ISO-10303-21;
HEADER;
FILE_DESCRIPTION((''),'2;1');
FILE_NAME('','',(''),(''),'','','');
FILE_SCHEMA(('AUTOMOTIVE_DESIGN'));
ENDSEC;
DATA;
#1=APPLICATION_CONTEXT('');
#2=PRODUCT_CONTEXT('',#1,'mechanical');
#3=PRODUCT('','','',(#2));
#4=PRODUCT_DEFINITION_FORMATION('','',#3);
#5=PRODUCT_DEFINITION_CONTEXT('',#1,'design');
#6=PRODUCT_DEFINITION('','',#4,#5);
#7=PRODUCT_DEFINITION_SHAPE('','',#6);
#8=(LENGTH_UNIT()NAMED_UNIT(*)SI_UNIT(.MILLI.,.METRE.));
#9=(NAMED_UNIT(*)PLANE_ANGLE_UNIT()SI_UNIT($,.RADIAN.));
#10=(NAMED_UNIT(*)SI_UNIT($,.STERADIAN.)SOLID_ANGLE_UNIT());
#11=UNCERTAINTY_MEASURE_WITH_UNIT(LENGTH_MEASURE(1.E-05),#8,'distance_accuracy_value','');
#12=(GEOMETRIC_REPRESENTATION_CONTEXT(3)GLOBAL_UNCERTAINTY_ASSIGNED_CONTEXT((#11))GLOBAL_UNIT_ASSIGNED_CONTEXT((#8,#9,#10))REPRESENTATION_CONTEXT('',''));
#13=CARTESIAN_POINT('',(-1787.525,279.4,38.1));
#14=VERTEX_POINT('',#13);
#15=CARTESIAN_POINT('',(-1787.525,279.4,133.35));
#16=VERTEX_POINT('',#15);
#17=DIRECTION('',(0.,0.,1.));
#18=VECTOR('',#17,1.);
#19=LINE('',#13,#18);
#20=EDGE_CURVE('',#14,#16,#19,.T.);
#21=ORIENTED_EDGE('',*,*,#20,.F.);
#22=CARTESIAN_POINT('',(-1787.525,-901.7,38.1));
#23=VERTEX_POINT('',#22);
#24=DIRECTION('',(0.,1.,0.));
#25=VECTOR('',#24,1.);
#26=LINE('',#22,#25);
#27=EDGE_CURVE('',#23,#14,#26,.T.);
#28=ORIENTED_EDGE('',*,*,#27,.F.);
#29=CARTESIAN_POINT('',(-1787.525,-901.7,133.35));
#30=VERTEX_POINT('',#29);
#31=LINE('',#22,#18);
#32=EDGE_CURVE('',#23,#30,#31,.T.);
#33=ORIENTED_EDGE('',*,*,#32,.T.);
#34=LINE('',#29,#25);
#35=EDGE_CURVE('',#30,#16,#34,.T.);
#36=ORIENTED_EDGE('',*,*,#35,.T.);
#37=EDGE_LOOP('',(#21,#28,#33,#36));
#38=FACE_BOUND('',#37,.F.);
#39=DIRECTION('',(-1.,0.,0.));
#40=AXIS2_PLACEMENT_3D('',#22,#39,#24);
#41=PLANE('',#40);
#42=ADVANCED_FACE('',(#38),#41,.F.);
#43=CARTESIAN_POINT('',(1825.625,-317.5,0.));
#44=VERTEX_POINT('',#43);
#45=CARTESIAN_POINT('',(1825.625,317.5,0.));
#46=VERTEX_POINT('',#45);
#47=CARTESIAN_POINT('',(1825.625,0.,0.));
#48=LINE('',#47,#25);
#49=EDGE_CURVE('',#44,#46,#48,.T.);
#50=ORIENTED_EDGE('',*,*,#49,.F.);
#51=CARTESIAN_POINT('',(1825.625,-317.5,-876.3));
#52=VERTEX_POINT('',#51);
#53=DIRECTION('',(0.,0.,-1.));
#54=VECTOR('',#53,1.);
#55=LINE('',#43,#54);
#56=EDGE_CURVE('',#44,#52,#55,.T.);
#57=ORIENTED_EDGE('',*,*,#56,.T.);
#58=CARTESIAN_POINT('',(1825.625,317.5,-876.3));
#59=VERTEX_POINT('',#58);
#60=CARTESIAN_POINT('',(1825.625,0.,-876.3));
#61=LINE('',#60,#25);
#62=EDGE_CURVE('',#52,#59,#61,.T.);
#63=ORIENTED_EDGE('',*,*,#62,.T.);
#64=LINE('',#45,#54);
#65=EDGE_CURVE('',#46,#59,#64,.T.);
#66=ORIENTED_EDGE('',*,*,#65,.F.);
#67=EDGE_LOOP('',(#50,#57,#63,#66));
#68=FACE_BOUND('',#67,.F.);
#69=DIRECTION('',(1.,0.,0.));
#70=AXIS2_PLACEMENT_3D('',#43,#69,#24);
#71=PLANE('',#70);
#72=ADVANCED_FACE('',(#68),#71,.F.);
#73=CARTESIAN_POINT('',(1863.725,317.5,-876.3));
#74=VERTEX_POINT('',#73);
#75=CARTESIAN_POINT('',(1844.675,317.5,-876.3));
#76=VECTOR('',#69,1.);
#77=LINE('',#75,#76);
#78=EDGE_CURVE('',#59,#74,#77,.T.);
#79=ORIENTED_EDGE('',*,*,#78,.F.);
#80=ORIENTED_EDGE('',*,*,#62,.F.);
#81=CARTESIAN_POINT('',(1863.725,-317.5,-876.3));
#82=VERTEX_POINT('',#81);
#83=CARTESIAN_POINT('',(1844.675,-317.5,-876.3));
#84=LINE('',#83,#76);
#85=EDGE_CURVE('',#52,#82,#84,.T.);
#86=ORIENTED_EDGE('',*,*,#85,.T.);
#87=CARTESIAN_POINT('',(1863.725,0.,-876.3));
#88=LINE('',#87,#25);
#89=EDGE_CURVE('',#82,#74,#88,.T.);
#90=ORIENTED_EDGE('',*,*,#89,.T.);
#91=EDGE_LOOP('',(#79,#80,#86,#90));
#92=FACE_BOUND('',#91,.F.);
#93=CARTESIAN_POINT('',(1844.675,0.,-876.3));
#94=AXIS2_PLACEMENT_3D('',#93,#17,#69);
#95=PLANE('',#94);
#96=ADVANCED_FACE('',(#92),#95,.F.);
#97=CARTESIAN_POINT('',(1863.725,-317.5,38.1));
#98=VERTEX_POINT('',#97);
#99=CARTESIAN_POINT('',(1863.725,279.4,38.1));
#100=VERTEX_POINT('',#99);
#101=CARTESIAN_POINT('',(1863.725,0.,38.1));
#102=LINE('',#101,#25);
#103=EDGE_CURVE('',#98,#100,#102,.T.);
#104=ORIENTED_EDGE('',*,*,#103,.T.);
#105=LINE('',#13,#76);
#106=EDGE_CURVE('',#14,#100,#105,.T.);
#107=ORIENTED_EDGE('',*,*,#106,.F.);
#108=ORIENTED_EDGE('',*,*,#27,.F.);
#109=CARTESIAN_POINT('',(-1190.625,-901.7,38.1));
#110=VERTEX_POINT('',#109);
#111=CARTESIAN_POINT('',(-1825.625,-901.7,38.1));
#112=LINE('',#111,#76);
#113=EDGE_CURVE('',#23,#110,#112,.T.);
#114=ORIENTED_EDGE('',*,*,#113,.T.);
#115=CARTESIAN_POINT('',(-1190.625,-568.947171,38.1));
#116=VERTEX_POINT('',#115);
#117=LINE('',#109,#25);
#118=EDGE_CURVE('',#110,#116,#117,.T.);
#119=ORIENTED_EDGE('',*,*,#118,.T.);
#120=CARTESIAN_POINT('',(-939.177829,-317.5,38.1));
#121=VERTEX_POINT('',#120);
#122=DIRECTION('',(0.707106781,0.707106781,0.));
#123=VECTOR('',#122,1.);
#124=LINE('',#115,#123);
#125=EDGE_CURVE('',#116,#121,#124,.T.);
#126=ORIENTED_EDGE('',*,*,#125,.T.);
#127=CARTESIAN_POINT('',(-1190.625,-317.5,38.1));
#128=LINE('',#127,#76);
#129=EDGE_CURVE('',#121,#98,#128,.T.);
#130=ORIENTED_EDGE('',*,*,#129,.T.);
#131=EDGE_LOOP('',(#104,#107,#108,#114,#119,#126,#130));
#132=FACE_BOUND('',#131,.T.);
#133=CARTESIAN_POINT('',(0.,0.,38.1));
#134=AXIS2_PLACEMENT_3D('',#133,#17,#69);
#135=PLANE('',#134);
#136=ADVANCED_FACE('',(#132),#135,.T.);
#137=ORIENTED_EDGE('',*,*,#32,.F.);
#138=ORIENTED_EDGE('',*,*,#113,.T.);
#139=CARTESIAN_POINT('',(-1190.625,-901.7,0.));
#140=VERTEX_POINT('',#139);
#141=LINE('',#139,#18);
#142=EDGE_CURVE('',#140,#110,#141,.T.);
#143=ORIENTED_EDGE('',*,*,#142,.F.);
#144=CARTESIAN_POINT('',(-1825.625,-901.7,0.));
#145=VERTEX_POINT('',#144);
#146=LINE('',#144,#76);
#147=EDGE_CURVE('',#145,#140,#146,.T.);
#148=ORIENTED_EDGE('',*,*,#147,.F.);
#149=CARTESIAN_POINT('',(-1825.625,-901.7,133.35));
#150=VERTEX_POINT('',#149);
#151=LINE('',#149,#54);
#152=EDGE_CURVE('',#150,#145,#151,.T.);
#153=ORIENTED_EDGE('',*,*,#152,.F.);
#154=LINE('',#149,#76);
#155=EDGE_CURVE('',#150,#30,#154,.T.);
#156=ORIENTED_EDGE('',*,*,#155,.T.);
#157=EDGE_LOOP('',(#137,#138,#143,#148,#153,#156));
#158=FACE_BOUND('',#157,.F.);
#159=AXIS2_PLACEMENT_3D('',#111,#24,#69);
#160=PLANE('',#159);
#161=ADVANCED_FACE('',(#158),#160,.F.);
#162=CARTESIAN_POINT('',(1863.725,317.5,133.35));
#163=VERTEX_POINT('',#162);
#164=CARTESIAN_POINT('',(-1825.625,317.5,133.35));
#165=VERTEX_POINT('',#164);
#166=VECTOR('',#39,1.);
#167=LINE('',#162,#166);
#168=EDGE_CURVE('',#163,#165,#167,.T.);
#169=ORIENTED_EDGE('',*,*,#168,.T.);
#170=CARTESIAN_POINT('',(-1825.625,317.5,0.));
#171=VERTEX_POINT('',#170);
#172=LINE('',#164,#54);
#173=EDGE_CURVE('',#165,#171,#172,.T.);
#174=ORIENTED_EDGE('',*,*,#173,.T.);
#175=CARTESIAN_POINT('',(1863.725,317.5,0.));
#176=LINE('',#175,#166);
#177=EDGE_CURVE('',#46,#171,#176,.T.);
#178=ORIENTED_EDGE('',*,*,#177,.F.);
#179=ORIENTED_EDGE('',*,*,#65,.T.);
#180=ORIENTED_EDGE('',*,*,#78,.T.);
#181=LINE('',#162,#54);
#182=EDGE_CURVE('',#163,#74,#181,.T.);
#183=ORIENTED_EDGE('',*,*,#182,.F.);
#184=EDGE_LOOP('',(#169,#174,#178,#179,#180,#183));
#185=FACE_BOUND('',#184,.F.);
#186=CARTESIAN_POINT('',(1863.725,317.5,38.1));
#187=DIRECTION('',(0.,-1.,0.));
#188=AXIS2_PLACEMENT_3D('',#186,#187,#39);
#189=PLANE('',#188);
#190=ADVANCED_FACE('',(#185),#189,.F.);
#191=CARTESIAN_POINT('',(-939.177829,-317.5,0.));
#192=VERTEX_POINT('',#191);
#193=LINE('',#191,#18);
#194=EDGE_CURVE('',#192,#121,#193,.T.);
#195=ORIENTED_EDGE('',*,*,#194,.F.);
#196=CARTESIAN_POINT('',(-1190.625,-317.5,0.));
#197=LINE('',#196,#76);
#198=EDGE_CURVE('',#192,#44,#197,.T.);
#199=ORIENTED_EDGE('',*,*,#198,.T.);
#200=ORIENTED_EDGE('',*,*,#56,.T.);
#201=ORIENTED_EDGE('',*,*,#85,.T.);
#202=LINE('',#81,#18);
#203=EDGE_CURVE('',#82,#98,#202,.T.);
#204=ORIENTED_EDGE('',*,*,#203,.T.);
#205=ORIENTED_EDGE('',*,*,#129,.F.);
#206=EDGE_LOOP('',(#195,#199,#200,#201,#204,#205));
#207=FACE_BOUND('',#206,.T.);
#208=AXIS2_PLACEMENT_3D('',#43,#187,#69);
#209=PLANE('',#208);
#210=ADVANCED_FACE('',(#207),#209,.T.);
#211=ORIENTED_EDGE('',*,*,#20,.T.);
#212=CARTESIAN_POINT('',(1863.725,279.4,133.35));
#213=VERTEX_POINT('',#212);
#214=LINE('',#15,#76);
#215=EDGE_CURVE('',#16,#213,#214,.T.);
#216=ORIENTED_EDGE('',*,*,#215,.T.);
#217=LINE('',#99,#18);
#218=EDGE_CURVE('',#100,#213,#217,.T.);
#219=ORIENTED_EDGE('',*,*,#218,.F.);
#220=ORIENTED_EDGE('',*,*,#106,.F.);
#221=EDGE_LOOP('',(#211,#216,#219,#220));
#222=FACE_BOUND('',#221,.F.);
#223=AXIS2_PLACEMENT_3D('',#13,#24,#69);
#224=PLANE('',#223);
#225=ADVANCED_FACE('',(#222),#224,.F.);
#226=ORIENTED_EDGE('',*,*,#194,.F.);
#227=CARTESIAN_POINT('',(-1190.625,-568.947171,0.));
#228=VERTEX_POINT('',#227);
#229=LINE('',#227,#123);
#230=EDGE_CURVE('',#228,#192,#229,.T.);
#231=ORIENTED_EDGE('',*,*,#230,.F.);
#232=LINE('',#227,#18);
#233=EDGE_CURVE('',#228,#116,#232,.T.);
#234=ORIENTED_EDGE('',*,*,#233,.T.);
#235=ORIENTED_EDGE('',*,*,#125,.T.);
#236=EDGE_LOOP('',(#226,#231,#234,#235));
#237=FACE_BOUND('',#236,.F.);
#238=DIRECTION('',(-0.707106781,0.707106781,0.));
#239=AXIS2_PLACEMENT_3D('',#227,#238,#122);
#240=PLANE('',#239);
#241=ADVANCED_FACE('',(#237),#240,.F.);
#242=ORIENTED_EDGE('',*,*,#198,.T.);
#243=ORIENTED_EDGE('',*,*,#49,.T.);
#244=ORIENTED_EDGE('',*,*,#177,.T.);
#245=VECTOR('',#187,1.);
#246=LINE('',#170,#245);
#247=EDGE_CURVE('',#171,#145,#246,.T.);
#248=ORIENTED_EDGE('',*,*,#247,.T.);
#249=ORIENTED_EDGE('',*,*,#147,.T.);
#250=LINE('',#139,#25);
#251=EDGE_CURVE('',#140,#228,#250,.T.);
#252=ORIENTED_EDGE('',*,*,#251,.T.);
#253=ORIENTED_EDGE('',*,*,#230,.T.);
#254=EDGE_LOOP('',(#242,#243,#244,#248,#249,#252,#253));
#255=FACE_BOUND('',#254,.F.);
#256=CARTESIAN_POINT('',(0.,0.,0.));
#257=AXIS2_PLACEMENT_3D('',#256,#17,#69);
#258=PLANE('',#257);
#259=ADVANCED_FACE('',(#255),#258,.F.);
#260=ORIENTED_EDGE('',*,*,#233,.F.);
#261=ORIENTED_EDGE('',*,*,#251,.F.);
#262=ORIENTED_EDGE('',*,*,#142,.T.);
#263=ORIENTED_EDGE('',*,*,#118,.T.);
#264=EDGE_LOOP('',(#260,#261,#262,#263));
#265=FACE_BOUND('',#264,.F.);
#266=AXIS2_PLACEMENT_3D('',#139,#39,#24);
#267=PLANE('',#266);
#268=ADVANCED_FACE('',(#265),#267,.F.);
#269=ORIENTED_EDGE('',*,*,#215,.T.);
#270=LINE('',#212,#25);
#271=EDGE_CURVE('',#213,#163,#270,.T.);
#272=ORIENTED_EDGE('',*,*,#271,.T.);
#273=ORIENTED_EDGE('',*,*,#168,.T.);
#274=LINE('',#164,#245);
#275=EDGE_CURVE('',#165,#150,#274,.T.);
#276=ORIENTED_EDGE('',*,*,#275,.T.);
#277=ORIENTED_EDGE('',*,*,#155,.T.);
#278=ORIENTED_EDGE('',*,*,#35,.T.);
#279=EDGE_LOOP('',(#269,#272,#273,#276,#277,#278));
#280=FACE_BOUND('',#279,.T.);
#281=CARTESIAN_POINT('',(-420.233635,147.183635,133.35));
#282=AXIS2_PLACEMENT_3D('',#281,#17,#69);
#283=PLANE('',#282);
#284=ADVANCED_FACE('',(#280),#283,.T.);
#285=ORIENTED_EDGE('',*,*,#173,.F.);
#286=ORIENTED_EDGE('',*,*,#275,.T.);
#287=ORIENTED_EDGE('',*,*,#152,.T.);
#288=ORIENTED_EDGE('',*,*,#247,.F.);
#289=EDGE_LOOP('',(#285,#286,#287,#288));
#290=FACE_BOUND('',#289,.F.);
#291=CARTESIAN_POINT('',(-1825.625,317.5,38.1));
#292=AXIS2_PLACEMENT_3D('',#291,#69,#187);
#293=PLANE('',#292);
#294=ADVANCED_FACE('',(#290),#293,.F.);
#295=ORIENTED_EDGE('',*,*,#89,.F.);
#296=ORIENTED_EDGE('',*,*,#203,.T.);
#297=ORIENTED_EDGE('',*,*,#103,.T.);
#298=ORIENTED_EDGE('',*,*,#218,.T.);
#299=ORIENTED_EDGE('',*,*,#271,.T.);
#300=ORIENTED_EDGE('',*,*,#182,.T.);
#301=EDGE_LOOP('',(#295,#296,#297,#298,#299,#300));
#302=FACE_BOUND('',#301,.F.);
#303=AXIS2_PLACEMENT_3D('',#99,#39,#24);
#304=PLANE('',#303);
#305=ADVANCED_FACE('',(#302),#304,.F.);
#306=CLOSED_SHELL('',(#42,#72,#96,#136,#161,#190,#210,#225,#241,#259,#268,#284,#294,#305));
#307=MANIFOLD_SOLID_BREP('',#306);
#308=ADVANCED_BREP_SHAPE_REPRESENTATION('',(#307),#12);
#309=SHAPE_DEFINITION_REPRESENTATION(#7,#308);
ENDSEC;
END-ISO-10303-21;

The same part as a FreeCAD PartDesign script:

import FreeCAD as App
import Part
import Sketcher
from FreeCAD import Vector
Q = App.Units.Quantity


def add_polygon(sketch, points):
    """Adds a closed chain of lines whose ends are joined by coincident constraints."""
    first, n = sketch.GeometryCount, len(points)
    for a, b in zip(points, points[1:] + points[:1]):
        sketch.addGeometry(Part.LineSegment(App.Vector(*a, 0), App.Vector(*b, 0)), False)
    for i in range(n):
        sketch.addConstraint(Sketcher.Constraint("Coincident", first + i, 2, first + (i + 1) % n, 1))

doc = App.newDocument("Part")
body = doc.addObject("PartDesign::Body", "Body")

# Sketch on XY plane
sketch1 = body.newObject("Sketcher::SketchObject", "Sketch")
sketch1.AttachmentSupport = (doc.getObject("XY_Plane"), [""])
sketch1.MapMode = "FlatFace"
add_polygon(sketch1, [(-1826, 318), (-1826, -902), (-1191, -902), (-1191, -569), (-939, -318), (1864, -318), (1864, 318)])  # lines 0-6
sketch1.addConstraint(Sketcher.Constraint("Vertical", 0))
sketch1.addConstraint(Sketcher.Constraint("Horizontal", 1))
sketch1.addConstraint(Sketcher.Constraint("Vertical", 2))
sketch1.addConstraint(Sketcher.Constraint("Horizontal", 4))
sketch1.addConstraint(Sketcher.Constraint("Vertical", 5))
sketch1.addConstraint(Sketcher.Constraint("Horizontal", 6))
sketch1.addConstraint(Sketcher.Constraint("Equal", 1, 5))
sketch1.addConstraint(Sketcher.Constraint("DistanceX", 1, 1, 1, 2, Q("25 in")))
sketch1.addConstraint(Sketcher.Constraint("DistanceY", 0, 2, 0, 1, Q("48 in")))
sketch1.addConstraint(Sketcher.Constraint("Distance", 3, Q("14 in")))
sketch1.addConstraint(Sketcher.Constraint("Angle", 3, Q("45 deg")))
sketch1.addConstraint(Sketcher.Constraint("DistanceX", 6, 2, 6, 1, Q("145.25 in")))
sketch1.addConstraint(Sketcher.Constraint("DistanceY", 0, 2, -1, 1, Q("35.5 in")))
sketch1.addConstraint(Sketcher.Constraint("DistanceX", 0, 2, -1, 1, Q("71.875 in")))
pad1 = body.newObject("PartDesign::Pad", "Pad")
pad1.Profile = sketch1
pad1.Length = Q("1.5 in")

# Sketch on XY plane
sketch2 = body.newObject("Sketcher::SketchObject", "Sketch001")
sketch2.AttachmentSupport = (doc.getObject("XY_Plane"), [""])
sketch2.MapMode = "FlatFace"
add_polygon(sketch2, [(1826, 318), (1826, -318), (1864, -318), (1864, 318)])  # lines 0-3
sketch2.addConstraint(Sketcher.Constraint("Vertical", 0))
sketch2.addConstraint(Sketcher.Constraint("Horizontal", 1))
sketch2.addConstraint(Sketcher.Constraint("Vertical", 2))
sketch2.addConstraint(Sketcher.Constraint("Horizontal", 3))
sketch2.addConstraint(Sketcher.Constraint("DistanceY", 0, 2, 0, 1, Q("25 in")))
sketch2.addConstraint(Sketcher.Constraint("DistanceX", 1, 1, 1, 2, Q("1.5 in")))
sketch2.addConstraint(Sketcher.Constraint("DistanceY", 0, 2, -1, 1, Q("12.5 in")))
sketch2.addConstraint(Sketcher.Constraint("DistanceX", -1, 1, 0, 2, Q("71.875 in")))
pad2 = body.newObject("PartDesign::Pad", "Pad001")
pad2.Profile = sketch2
pad2.Length = Q("34.5 in")
pad2.Reversed = True

# Sketch on XY plane
sketch3 = body.newObject("Sketcher::SketchObject", "Sketch002")
sketch3.AttachmentSupport = (doc.getObject("XY_Plane"), [""])
sketch3.MapMode = "FlatFace"
sketch3.AttachmentOffset = App.Placement(Vector(0, 0, 1.5 * 25.4), App.Rotation())
add_polygon(sketch3, [(-1826, -902), (-1788, -902), (-1788, 279), (1864, 279), (1864, 318), (-1826, 318)])  # lines 0-5
sketch3.addConstraint(Sketcher.Constraint("Horizontal", 0))
sketch3.addConstraint(Sketcher.Constraint("Vertical", 1))
sketch3.addConstraint(Sketcher.Constraint("Horizontal", 2))
sketch3.addConstraint(Sketcher.Constraint("Vertical", 3))
sketch3.addConstraint(Sketcher.Constraint("Horizontal", 4))
sketch3.addConstraint(Sketcher.Constraint("Vertical", 5))
sketch3.addConstraint(Sketcher.Constraint("Equal", 0, 3))
sketch3.addConstraint(Sketcher.Constraint("DistanceY", 5, 2, 5, 1, Q("48 in")))
sketch3.addConstraint(Sketcher.Constraint("DistanceX", 0, 1, 0, 2, Q("1.5 in")))
sketch3.addConstraint(Sketcher.Constraint("DistanceY", -1, 1, 1, 2, Q("11 in")))
sketch3.addConstraint(Sketcher.Constraint("DistanceX", 2, 1, 2, 2, Q("143.75 in")))
sketch3.addConstraint(Sketcher.Constraint("DistanceX", 0, 2, -1, 1, Q("70.375 in")))
pad3 = body.newObject("PartDesign::Pad", "Pad002")
pad3.Profile = sketch3
pad3.Length = Q("3.75 in")

doc.recompute()
